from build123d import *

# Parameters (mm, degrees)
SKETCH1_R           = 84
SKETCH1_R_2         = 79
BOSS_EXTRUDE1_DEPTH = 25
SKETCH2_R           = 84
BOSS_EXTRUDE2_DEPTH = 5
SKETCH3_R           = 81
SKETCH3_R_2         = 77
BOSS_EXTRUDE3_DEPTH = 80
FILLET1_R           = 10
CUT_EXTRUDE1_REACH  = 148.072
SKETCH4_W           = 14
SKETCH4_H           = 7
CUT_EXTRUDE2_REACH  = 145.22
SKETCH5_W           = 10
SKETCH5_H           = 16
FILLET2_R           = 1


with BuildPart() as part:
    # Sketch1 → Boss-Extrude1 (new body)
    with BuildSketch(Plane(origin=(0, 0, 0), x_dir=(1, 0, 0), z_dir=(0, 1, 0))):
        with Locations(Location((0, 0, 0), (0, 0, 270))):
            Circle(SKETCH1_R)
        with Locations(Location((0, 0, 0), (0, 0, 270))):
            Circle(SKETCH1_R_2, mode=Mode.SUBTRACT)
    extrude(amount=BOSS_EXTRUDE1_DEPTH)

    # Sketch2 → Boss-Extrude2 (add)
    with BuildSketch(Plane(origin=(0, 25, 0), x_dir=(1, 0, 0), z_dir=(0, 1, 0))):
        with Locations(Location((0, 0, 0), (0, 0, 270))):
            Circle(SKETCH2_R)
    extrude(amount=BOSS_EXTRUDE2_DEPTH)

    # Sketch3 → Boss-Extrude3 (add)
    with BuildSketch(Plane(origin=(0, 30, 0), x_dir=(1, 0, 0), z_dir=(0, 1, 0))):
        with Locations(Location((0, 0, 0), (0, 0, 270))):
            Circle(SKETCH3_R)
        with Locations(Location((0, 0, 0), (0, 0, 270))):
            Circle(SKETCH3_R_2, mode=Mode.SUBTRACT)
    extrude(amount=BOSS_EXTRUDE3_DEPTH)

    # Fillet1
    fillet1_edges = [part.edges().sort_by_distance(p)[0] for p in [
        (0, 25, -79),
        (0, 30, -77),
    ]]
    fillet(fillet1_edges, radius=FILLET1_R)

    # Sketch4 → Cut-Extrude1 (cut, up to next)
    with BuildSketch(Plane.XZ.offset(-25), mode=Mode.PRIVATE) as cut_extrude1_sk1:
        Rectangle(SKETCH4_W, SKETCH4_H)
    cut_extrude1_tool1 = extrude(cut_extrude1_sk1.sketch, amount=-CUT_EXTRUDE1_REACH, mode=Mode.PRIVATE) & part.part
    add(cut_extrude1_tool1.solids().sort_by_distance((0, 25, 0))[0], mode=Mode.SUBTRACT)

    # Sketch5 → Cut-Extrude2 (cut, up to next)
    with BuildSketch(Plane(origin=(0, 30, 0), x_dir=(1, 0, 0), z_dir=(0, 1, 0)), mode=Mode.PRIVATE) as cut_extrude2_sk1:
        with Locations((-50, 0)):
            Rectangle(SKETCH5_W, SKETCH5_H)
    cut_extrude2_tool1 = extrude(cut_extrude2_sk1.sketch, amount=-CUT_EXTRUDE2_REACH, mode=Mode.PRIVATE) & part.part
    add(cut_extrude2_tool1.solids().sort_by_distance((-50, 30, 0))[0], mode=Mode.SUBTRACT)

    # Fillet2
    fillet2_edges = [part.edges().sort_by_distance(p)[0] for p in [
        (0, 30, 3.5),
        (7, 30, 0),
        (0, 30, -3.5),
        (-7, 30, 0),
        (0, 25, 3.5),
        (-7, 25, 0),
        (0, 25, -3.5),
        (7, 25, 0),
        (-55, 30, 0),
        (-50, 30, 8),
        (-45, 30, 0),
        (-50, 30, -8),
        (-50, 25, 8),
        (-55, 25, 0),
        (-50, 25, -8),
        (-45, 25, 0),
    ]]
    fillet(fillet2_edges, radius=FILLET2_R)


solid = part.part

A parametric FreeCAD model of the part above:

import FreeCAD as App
import Part
import Sketcher


def edges_at(feature, points):
    """Names of the edges that pass closest to the given points."""
    edges = feature.Shape.Edges
    near = lambda p: min(range(len(edges)), key=lambda i: edges[i].distToShape(Part.Vertex(*p))[0])
    return sorted({f"Edge{near(p) + 1}" for p in points})

doc = App.newDocument("Part")
body = doc.addObject("PartDesign::Body", "Body")

# Sketch on XZ plane
sketch1 = body.newObject("Sketcher::SketchObject", "Sketch")
sketch1.AttachmentSupport = (doc.getObject("XZ_Plane"), [""])
sketch1.MapMode = "FlatFace"
sketch1.addGeometry([
    Part.Circle(App.Vector(0, 0, 0), App.Vector(0, 0, 1), 84),
    Part.Circle(App.Vector(0, 0, 0), App.Vector(0, 0, 1), 79),
], False)
sketch1.addConstraint([
    Sketcher.Constraint("Coincident", 0, 3, -1, 1),
    Sketcher.Constraint("Coincident", 1, 3, -1, 1),
    Sketcher.Constraint("Diameter", 0, 168.0),
    Sketcher.Constraint("Diameter", 1, 158.0),
])
pad1 = body.newObject("PartDesign::Pad", "Pad")
pad1.Profile = sketch1
pad1.Length = 25
pad1.Reversed = True

# Sketch on XZ plane
sketch2 = body.newObject("Sketcher::SketchObject", "Sketch001")
sketch2.AttachmentSupport = (doc.getObject("XZ_Plane"), [""])
sketch2.MapMode = "FlatFace"
sketch2.AttachmentOffset = App.Placement(App.Vector(0, 0, -25), App.Rotation())
sketch2.addGeometry(Part.Circle(App.Vector(0, 0, 0), App.Vector(0, 0, 1), 84), False)
sketch2.addConstraint([
    Sketcher.Constraint("Coincident", 0, 3, -1, 1),
    Sketcher.Constraint("Diameter", 0, 168.0),
])
pad2 = body.newObject("PartDesign::Pad", "Pad001")
pad2.Profile = sketch2
pad2.Length = 5
pad2.Reversed = True

# Sketch on XZ plane
sketch3 = body.newObject("Sketcher::SketchObject", "Sketch002")
sketch3.AttachmentSupport = (doc.getObject("XZ_Plane"), [""])
sketch3.MapMode = "FlatFace"
sketch3.AttachmentOffset = App.Placement(App.Vector(0, 0, -30), App.Rotation())
sketch3.addGeometry([
    Part.Circle(App.Vector(0, 0, 0), App.Vector(0, 0, 1), 81),
    Part.Circle(App.Vector(0, 0, 0), App.Vector(0, 0, 1), 77),
], False)
sketch3.addConstraint([
    Sketcher.Constraint("Coincident", 0, 3, -1, 1),
    Sketcher.Constraint("Coincident", 1, 3, -1, 1),
    Sketcher.Constraint("Diameter", 0, 162.0),
    Sketcher.Constraint("Diameter", 1, 154.0),
])
pad3 = body.newObject("PartDesign::Pad", "Pad002")
pad3.Profile = sketch3
pad3.Length = 80
pad3.Reversed = True
doc.recompute()

fillet = body.newObject("PartDesign::Fillet", "Fillet")
fillet.Base = (pad3, edges_at(pad3, [(0, 25, -79), (0, 30, -77)]))
fillet.Radius = 10

# Sketch on XZ plane
sketch4 = body.newObject("Sketcher::SketchObject", "Sketch003")
sketch4.AttachmentSupport = (doc.getObject("XZ_Plane"), [""])
sketch4.MapMode = "FlatFace"
sketch4.AttachmentOffset = App.Placement(App.Vector(0, 0, -25), App.Rotation())
sketch4.addGeometry([
    Part.LineSegment(App.Vector(-7, 4, 0), App.Vector(-7, -4, 0)),
    Part.LineSegment(App.Vector(-7, -4, 0), App.Vector(7, -4, 0)),
    Part.LineSegment(App.Vector(7, -4, 0), App.Vector(7, 4, 0)),
    Part.LineSegment(App.Vector(7, 4, 0), App.Vector(-7, 4, 0)),
], False)
sketch4.addConstraint([
    Sketcher.Constraint("Coincident", 0, 2, 1, 1),
    Sketcher.Constraint("Coincident", 1, 2, 2, 1),
    Sketcher.Constraint("Coincident", 2, 2, 3, 1),
    Sketcher.Constraint("Coincident", 3, 2, 0, 1),
    Sketcher.Constraint("Vertical", 0),
    Sketcher.Constraint("Horizontal", 1),
    Sketcher.Constraint("Vertical", 2),
    Sketcher.Constraint("Horizontal", 3),
    Sketcher.Constraint("Symmetric", 0, 2, 2, 2, -1, 1),
    Sketcher.Constraint("DistanceX", 1, 1, 1, 2, 14.0),
    Sketcher.Constraint("DistanceY", 0, 2, 0, 1, 7.0),
])
pocket1 = body.newObject("PartDesign::Pocket", "Pocket")
pocket1.Profile = sketch4
pocket1.Type = "UpToFirst"

# Sketch on XZ plane
sketch5 = body.newObject("Sketcher::SketchObject", "Sketch004")
sketch5.AttachmentSupport = (doc.getObject("XZ_Plane"), [""])
sketch5.MapMode = "FlatFace"
sketch5.AttachmentOffset = App.Placement(App.Vector(0, 0, -30), App.Rotation())
sketch5.addGeometry([
    Part.LineSegment(App.Vector(-55, -8, 0), App.Vector(-55, 8, 0)),
    Part.LineSegment(App.Vector(-55, 8, 0), App.Vector(-45, 8, 0)),
    Part.LineSegment(App.Vector(-45, 8, 0), App.Vector(-45, -8, 0)),
    Part.LineSegment(App.Vector(-45, -8, 0), App.Vector(-55, -8, 0)),
], False)
sketch5.addConstraint([
    Sketcher.Constraint("Coincident", 0, 2, 1, 1),
    Sketcher.Constraint("Coincident", 1, 2, 2, 1),
    Sketcher.Constraint("Coincident", 2, 2, 3, 1),
    Sketcher.Constraint("Coincident", 3, 2, 0, 1),
    Sketcher.Constraint("Vertical", 0),
    Sketcher.Constraint("Horizontal", 1),
    Sketcher.Constraint("Vertical", 2),
    Sketcher.Constraint("Horizontal", 3),
    Sketcher.Constraint("DistanceX", 1, 1, 1, 2, 10.0),
    Sketcher.Constraint("DistanceY", 0, 1, 0, 2, 16.0),
    Sketcher.Constraint("DistanceX", 0, 2, -1, 1, 55.0),
    Sketcher.Constraint("DistanceY", -1, 1, 0, 2, 8.0),
])
pocket2 = body.newObject("PartDesign::Pocket", "Pocket001")
pocket2.Profile = sketch5
pocket2.Type = "UpToFirst"
pocket2.Reversed = True
doc.recompute()

fillet2 = body.newObject("PartDesign::Fillet", "Fillet001")
fillet2.Base = (pocket2, edges_at(pocket2, [
    (0, 30, 3.5),
    (7, 30, 0),
    (0, 30, -3.5),
    (-7, 30, 0),
    (0, 25, 3.5),
    (-7, 25, 0),
    (0, 25, -3.5),
    (7, 25, 0),
    (-55, 30, 0),
    (-50, 30, 8),
    (-45, 30, 0),
    (-50, 30, -8),
    (-50, 25, 8),
    (-55, 25, 0),
    (-50, 25, -8),
    (-45, 25, 0),
]))
fillet2.Radius = 1

doc.recompute()
